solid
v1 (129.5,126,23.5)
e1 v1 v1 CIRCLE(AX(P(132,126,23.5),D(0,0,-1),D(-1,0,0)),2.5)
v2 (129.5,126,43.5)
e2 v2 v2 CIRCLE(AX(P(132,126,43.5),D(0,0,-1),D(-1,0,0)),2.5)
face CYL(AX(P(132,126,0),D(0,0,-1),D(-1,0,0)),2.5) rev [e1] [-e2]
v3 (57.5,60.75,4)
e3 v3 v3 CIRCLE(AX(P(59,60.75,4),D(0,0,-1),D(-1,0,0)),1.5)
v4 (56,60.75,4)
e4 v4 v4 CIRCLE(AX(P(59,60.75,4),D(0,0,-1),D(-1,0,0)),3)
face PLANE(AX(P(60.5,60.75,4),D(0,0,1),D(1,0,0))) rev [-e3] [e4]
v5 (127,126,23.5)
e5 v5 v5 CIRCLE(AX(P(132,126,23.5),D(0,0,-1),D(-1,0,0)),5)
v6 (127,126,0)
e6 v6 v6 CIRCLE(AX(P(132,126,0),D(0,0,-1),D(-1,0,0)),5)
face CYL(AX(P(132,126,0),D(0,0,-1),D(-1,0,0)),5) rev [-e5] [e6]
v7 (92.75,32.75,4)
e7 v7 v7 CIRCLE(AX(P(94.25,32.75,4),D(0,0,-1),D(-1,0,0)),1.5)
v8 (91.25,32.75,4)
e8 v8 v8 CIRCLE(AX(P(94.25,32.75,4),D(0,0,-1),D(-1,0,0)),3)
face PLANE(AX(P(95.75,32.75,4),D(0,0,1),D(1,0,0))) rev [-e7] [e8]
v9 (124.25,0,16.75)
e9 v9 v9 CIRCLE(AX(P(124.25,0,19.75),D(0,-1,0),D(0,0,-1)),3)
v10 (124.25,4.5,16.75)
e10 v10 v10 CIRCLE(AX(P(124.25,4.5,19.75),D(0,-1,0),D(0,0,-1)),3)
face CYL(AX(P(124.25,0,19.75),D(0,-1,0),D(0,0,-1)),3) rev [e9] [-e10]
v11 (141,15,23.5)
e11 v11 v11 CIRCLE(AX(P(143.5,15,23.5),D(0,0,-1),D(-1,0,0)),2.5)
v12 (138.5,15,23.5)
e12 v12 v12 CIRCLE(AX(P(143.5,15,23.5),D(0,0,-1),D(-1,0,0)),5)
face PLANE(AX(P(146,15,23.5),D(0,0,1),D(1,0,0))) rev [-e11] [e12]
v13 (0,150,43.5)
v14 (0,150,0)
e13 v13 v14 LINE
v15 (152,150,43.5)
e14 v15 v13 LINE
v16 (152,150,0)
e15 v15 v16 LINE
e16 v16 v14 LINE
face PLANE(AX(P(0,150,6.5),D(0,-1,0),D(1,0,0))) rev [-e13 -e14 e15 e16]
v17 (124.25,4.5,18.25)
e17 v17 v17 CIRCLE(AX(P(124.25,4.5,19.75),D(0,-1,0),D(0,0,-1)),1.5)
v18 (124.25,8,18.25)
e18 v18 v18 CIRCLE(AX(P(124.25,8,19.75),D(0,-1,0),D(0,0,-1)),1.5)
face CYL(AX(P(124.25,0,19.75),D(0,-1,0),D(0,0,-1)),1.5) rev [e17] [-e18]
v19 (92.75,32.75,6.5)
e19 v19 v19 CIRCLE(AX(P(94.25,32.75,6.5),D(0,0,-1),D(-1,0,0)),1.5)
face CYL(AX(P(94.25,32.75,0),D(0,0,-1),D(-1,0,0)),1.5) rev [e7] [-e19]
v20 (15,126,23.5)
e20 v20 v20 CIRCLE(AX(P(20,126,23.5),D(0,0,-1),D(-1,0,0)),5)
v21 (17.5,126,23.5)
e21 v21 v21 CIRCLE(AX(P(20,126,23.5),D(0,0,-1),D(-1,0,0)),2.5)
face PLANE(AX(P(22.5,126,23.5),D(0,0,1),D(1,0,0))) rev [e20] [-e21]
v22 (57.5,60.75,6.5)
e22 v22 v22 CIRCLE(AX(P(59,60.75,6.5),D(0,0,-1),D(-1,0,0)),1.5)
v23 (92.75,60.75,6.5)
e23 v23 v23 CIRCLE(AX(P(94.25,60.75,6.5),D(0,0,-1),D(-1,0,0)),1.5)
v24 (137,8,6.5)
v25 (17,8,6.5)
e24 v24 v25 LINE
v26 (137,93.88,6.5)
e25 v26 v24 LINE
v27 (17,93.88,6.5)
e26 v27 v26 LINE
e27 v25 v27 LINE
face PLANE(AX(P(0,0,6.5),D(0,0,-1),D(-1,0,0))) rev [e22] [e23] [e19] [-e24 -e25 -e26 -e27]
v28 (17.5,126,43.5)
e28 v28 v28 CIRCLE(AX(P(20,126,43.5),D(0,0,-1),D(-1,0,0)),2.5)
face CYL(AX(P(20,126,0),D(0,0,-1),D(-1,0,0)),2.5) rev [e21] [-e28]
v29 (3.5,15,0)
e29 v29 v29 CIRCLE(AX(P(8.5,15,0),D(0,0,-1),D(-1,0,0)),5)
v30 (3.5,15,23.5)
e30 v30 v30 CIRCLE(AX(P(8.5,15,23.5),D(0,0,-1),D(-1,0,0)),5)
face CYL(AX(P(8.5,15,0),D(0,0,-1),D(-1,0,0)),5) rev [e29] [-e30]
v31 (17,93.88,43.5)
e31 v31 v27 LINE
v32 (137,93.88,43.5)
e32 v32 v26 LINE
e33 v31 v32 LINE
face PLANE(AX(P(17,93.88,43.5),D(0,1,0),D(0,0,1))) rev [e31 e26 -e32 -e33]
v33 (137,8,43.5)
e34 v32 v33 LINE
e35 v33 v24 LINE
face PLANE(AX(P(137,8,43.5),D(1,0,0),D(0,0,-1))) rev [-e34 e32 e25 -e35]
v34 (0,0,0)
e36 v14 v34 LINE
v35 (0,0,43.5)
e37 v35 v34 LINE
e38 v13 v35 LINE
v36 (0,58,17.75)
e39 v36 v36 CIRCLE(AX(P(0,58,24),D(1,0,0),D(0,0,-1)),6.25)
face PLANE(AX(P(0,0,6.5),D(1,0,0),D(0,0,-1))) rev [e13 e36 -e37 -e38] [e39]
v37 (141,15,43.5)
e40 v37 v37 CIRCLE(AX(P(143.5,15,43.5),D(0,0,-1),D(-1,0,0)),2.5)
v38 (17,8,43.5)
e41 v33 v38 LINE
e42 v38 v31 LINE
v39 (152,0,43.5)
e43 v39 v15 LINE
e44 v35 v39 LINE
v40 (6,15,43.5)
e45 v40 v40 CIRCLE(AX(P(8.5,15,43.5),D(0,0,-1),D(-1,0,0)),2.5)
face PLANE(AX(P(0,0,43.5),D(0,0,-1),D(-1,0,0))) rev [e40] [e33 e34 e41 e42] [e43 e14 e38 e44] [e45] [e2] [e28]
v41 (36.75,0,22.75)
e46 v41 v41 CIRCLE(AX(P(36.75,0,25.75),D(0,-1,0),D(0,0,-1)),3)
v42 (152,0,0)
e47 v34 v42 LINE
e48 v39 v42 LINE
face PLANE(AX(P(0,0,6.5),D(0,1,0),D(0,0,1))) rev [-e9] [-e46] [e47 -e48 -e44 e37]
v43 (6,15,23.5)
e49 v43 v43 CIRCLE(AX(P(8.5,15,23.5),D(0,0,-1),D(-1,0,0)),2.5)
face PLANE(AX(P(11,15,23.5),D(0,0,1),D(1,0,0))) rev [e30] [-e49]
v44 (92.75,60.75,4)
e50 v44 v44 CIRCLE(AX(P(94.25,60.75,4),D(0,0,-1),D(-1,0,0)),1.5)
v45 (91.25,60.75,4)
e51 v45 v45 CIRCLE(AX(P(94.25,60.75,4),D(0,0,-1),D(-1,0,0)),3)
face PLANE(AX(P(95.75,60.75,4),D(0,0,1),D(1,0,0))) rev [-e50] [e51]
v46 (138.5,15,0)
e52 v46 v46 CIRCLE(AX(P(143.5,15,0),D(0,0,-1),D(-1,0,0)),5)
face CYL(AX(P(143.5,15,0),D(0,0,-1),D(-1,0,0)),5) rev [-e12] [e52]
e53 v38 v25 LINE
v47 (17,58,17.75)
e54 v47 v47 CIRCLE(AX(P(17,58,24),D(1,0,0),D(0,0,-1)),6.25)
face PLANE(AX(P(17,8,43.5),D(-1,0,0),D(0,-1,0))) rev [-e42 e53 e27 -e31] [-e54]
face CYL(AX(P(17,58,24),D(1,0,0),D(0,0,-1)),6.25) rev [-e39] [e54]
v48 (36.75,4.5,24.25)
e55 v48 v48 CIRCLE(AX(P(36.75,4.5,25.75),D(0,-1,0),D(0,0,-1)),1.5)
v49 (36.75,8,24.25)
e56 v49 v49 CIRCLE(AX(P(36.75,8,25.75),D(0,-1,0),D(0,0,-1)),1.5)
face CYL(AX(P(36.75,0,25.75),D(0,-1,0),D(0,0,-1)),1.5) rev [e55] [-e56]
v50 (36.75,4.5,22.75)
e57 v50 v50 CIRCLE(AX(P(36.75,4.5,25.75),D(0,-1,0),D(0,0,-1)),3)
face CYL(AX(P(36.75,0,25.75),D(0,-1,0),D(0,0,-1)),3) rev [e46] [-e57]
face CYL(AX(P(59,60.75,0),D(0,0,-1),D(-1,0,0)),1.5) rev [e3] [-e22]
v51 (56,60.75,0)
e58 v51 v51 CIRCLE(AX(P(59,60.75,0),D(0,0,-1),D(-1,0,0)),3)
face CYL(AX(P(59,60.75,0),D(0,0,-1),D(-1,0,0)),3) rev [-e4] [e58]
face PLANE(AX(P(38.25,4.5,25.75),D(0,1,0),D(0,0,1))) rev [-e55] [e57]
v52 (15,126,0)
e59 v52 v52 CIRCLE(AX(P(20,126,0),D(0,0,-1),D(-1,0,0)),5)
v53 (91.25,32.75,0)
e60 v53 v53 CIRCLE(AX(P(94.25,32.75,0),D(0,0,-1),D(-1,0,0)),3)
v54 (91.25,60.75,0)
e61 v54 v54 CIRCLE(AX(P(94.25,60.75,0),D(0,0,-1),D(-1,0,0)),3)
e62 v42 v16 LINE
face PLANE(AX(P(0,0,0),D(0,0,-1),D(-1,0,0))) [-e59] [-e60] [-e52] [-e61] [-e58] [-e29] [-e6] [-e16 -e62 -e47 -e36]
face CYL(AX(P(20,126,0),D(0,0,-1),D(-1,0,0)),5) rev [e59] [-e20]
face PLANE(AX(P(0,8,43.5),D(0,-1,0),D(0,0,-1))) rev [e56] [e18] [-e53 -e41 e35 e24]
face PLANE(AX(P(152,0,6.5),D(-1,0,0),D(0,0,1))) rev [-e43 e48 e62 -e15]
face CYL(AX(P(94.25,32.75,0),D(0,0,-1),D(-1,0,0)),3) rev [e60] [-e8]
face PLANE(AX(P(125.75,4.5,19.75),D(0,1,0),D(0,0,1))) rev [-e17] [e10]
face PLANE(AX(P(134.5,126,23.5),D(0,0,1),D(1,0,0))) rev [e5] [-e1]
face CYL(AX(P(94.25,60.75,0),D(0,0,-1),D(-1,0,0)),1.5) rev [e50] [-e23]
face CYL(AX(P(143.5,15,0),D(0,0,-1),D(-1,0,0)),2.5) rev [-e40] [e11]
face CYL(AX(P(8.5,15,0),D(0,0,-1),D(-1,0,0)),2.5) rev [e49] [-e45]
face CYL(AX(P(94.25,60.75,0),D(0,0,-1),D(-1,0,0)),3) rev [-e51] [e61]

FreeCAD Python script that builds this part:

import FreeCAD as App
import Part
import Sketcher
Q = App.Units.Quantity


def add_polygon(sketch, points):
    """Adds a closed chain of lines whose ends are joined by coincident constraints."""
    first, n = sketch.GeometryCount, len(points)
    for a, b in zip(points, points[1:] + points[:1]):
        sketch.addGeometry(Part.LineSegment(App.Vector(*a, 0), App.Vector(*b, 0)), False)
    for i in range(n):
        sketch.addConstraint(Sketcher.Constraint("Coincident", first + i, 2, first + (i + 1) % n, 1))

doc = App.newDocument("Part")
params = doc.addObject("Spreadsheet::Sheet", "Params")
for row, (alias, value) in enumerate([
    ("sketch1_width", "152 mm"),
    ("sketch1_height", "150 mm"),
    ("pad1_length", "6.5 mm"),
    ("sketch2_width", "152 mm"),
    ("sketch2_height", "8 mm"),
    ("pad2_length", "37 mm"),
    ("sketch3_width", "17 mm"),
    ("sketch3_height", "142 mm"),
    ("pad3_length", "37 mm"),
    ("sketch4_width", "15 mm"),
    ("sketch4_height", "142 mm"),
    ("pad4_length", "37 mm"),
    ("sketch5_width", "120 mm"),
    ("sketch5_height", "56.12 mm"),
    ("pad5_length", "37 mm"),
    ("sketch6_diameter", "3 mm"),
    ("hole_diameter", "3 mm"),
    ("hole_depth", "8 mm"),
    ("hole_cbore_diameter", "6 mm"),
    ("hole_cbore_depth", "4.5 mm"),
    ("sketch7_diameter", "3 mm"),
    ("hole2_diameter", "3 mm"),
    ("hole2_depth", "8 mm"),
    ("hole2_cbore_diameter", "6 mm"),
    ("hole2_cbore_depth", "4.5 mm"),
    ("sketch8_diameter", "12.5 mm"),
    ("hole3_diameter", "12.5 mm"),
    ("hole3_depth", "17 mm"),
    ("sketch9_diameter", "3 mm"),
    ("hole4_diameter", "3 mm"),
    ("hole4_cbore_diameter", "6 mm"),
    ("hole4_cbore_depth", "4 mm"),
    ("sketch10_diameter", "3 mm"),
    ("hole5_diameter", "3 mm"),
    ("hole5_cbore_diameter", "6 mm"),
    ("hole5_cbore_depth", "4 mm"),
    ("sketch11_diameter", "3 mm"),
    ("hole6_diameter", "3 mm"),
    ("hole6_cbore_diameter", "6 mm"),
    ("hole6_cbore_depth", "4 mm"),
    ("sketch12_diameter", "5 mm"),
    ("hole7_diameter", "5 mm"),
    ("hole7_cbore_diameter", "10 mm"),
    ("hole7_cbore_depth", "23.5 mm"),
    ("sketch13_diameter", "5 mm"),
    ("hole8_diameter", "5 mm"),
    ("hole8_cbore_diameter", "10 mm"),
    ("hole8_cbore_depth", "23.5 mm"),
], start=1):
    params.set(f"A{row}", alias)
    params.set(f"B{row}", "=" + value)
    params.setAlias(f"B{row}", alias)

body = doc.addObject("PartDesign::Body", "Body")

sketch1 = doc.addObject("Sketcher::SketchObject", "Sketch")
body.addObject(sketch1)
sketch1.AttachmentSupport = (doc.XY_Plane, [""])
sketch1.MapMode = "FlatFace"
add_polygon(sketch1, [(0, 150), (0, 0), (152, 0), (152, 150)])
sketch1.addConstraint(Sketcher.Constraint("Vertical", 0))
sketch1.addConstraint(Sketcher.Constraint("Horizontal", 1))
sketch1.addConstraint(Sketcher.Constraint("Vertical", 2))
sketch1.addConstraint(Sketcher.Constraint("Horizontal", 3))
sketch1.addConstraint(Sketcher.Constraint("Coincident", 0, 2, -1, 1))
sketch1.addConstraint(Sketcher.Constraint("DistanceX", 1, 1, 1, 2, Q("152 mm")))
sketch1.addConstraint(Sketcher.Constraint("DistanceY", 0, 2, 0, 1, Q("150 mm")))
sketch1.setExpression("Constraints[9]", "Params.sketch1_width")
sketch1.setExpression("Constraints[10]", "Params.sketch1_height")
pad1 = doc.addObject("PartDesign::Pad", "Pad")
body.addObject(pad1)
pad1.Profile = sketch1
pad1.setExpression("Length", "Params.pad1_length")

sketch2 = doc.addObject("Sketcher::SketchObject", "Sketch001")
body.addObject(sketch2)
sketch2.AttachmentSupport = (doc.XY_Plane, [""])
sketch2.MapMode = "FlatFace"
sketch2.AttachmentOffset = App.Placement(App.Vector(0, 0, 6.5), App.Rotation())
add_polygon(sketch2, [(0, 8), (0, 0), (152, 0), (152, 8)])
sketch2.addConstraint(Sketcher.Constraint("Vertical", 0))
sketch2.addConstraint(Sketcher.Constraint("Horizontal", 1))
sketch2.addConstraint(Sketcher.Constraint("Vertical", 2))
sketch2.addConstraint(Sketcher.Constraint("Horizontal", 3))
sketch2.addConstraint(Sketcher.Constraint("Coincident", 0, 2, -1, 1))
sketch2.addConstraint(Sketcher.Constraint("DistanceX", 1, 1, 1, 2, Q("152 mm")))
sketch2.addConstraint(Sketcher.Constraint("DistanceY", 0, 2, 0, 1, Q("8 mm")))
sketch2.setExpression("Constraints[9]", "Params.sketch2_width")
sketch2.setExpression("Constraints[10]", "Params.sketch2_height")
pad2 = doc.addObject("PartDesign::Pad", "Pad001")
body.addObject(pad2)
pad2.Profile = sketch2
pad2.setExpression("Length", "Params.pad2_length")

sketch3 = doc.addObject("Sketcher::SketchObject", "Sketch002")
body.addObject(sketch3)
sketch3.AttachmentSupport = (doc.XY_Plane, [""])
sketch3.MapMode = "FlatFace"
sketch3.AttachmentOffset = App.Placement(App.Vector(0, 0, 6.5), App.Rotation())
add_polygon(sketch3, [(0, 150), (0, 8), (17, 8), (17, 150)])
sketch3.addConstraint(Sketcher.Constraint("Vertical", 0))
sketch3.addConstraint(Sketcher.Constraint("Horizontal", 1))
sketch3.addConstraint(Sketcher.Constraint("Vertical", 2))
sketch3.addConstraint(Sketcher.Constraint("Horizontal", 3))
sketch3.addConstraint(Sketcher.Constraint("PointOnObject", 0, 2, -2))
sketch3.addConstraint(Sketcher.Constraint("DistanceX", 1, 1, 1, 2, Q("17 mm")))
sketch3.addConstraint(Sketcher.Constraint("DistanceY", 0, 2, 0, 1, Q("142 mm")))
sketch3.addConstraint(Sketcher.Constraint("DistanceY", -1, 1, 0, 2, Q("8 mm")))
sketch3.setExpression("Constraints[9]", "Params.sketch3_width")
sketch3.setExpression("Constraints[10]", "Params.sketch3_height")
pad3 = doc.addObject("PartDesign::Pad", "Pad002")
body.addObject(pad3)
pad3.Profile = sketch3
pad3.setExpression("Length", "Params.pad3_length")

sketch4 = doc.addObject("Sketcher::SketchObject", "Sketch003")
body.addObject(sketch4)
sketch4.AttachmentSupport = (doc.XY_Plane, [""])
sketch4.MapMode = "FlatFace"
sketch4.AttachmentOffset = App.Placement(App.Vector(0, 0, 6.5), App.Rotation())
add_polygon(sketch4, [(137, 150), (137, 8), (152, 8), (152, 150)])
sketch4.addConstraint(Sketcher.Constraint("Vertical", 0))
sketch4.addConstraint(Sketcher.Constraint("Horizontal", 1))
sketch4.addConstraint(Sketcher.Constraint("Vertical", 2))
sketch4.addConstraint(Sketcher.Constraint("Horizontal", 3))
sketch4.addConstraint(Sketcher.Constraint("DistanceX", 1, 1, 1, 2, Q("15 mm")))
sketch4.addConstraint(Sketcher.Constraint("DistanceY", 0, 2, 0, 1, Q("142 mm")))
sketch4.addConstraint(Sketcher.Constraint("DistanceX", -1, 1, 0, 2, Q("137 mm")))
sketch4.addConstraint(Sketcher.Constraint("DistanceY", -1, 1, 0, 2, Q("8 mm")))
sketch4.setExpression("Constraints[8]", "Params.sketch4_width")
sketch4.setExpression("Constraints[9]", "Params.sketch4_height")
pad4 = doc.addObject("PartDesign::Pad", "Pad003")
body.addObject(pad4)
pad4.Profile = sketch4
pad4.setExpression("Length", "Params.pad4_length")

sketch5 = doc.addObject("Sketcher::SketchObject", "Sketch004")
body.addObject(sketch5)
sketch5.AttachmentSupport = (doc.XY_Plane, [""])
sketch5.MapMode = "FlatFace"
sketch5.AttachmentOffset = App.Placement(App.Vector(0, 0, 6.5), App.Rotation())
add_polygon(sketch5, [(17, 150), (17, 94), (137, 94), (137, 150)])
sketch5.addConstraint(Sketcher.Constraint("Vertical", 0))
sketch5.addConstraint(Sketcher.Constraint("Horizontal", 1))
sketch5.addConstraint(Sketcher.Constraint("Vertical", 2))
sketch5.addConstraint(Sketcher.Constraint("Horizontal", 3))
sketch5.addConstraint(Sketcher.Constraint("DistanceX", 1, 1, 1, 2, Q("120 mm")))
sketch5.addConstraint(Sketcher.Constraint("DistanceX", -1, 1, 0, 2, Q("17 mm")))
sketch5.addConstraint(Sketcher.Constraint("DistanceY", -1, 1, 2, 2, Q("150 mm")))
sketch5.addConstraint(Sketcher.Constraint("DistanceY", 0, 2, 0, 1, Q("56.12 mm")))
sketch5.setExpression("Constraints[8]", "Params.sketch5_width")
sketch5.setExpression("Constraints[11]", "Params.sketch5_height")
pad5 = doc.addObject("PartDesign::Pad", "Pad004")
body.addObject(pad5)
pad5.Profile = sketch5
pad5.setExpression("Length", "Params.pad5_length")

sketch6 = doc.addObject("Sketcher::SketchObject", "Sketch005")
body.addObject(sketch6)
sketch6.AttachmentSupport = (doc.XZ_Plane, [""])
sketch6.MapMode = "FlatFace"
sketch6.addGeometry(Part.Circle(App.Vector(36.8, 25.8, 0), App.Vector(0, 0, 1), 1.5), False)
sketch6.addConstraint(Sketcher.Constraint("Diameter", 0, Q("3 mm")))
sketch6.addConstraint(Sketcher.Constraint("DistanceX", -1, 1, 0, 3, Q("36.75 mm")))
sketch6.addConstraint(Sketcher.Constraint("DistanceY", -1, 1, 0, 3, Q("25.75 mm")))
sketch6.setExpression("Constraints[0]", "Params.sketch6_diameter")
doc.recompute()
hole = doc.addObject("PartDesign::Hole", "Hole")
body.addObject(hole)
hole.Profile = sketch6
hole.ThreadType = "None"
hole.setExpression("Diameter", "Params.hole_diameter")
hole.DepthType = "Dimension"
hole.setExpression("Depth", "Params.hole_depth")
hole.DrillPoint = "Flat"
hole.HoleCutType = "Counterbore"
hole.setExpression("HoleCutDiameter", "Params.hole_cbore_diameter")
hole.setExpression("HoleCutDepth", "Params.hole_cbore_depth")

sketch7 = doc.addObject("Sketcher::SketchObject", "Sketch006")
body.addObject(sketch7)
sketch7.AttachmentSupport = (doc.XZ_Plane, [""])
sketch7.MapMode = "FlatFace"
sketch7.addGeometry(Part.Circle(App.Vector(124.2, 19.8, 0), App.Vector(0, 0, 1), 1.5), False)
sketch7.addConstraint(Sketcher.Constraint("Diameter", 0, Q("3 mm")))
sketch7.addConstraint(Sketcher.Constraint("DistanceX", -1, 1, 0, 3, Q("124.25 mm")))
sketch7.addConstraint(Sketcher.Constraint("DistanceY", -1, 1, 0, 3, Q("19.75 mm")))
sketch7.setExpression("Constraints[0]", "Params.sketch7_diameter")
doc.recompute()
hole2 = doc.addObject("PartDesign::Hole", "Hole001")
body.addObject(hole2)
hole2.Profile = sketch7
hole2.ThreadType = "None"
hole2.setExpression("Diameter", "Params.hole2_diameter")
hole2.DepthType = "Dimension"
hole2.setExpression("Depth", "Params.hole2_depth")
hole2.DrillPoint = "Flat"
hole2.HoleCutType = "Counterbore"
hole2.setExpression("HoleCutDiameter", "Params.hole2_cbore_diameter")
hole2.setExpression("HoleCutDepth", "Params.hole2_cbore_depth")

sketch8 = doc.addObject("Sketcher::SketchObject", "Sketch007")
body.addObject(sketch8)
sketch8.AttachmentSupport = (doc.YZ_Plane, [""])
sketch8.MapMode = "FlatFace"
sketch8.AttachmentOffset = App.Placement(App.Vector(0, 0, 17), App.Rotation())
sketch8.addGeometry(Part.Circle(App.Vector(58, 24, 0), App.Vector(0, 0, 1), 6), False)
sketch8.addConstraint(Sketcher.Constraint("Diameter", 0, Q("12.5 mm")))
sketch8.addConstraint(Sketcher.Constraint("DistanceX", -1, 1, 0, 3, Q("58 mm")))
sketch8.addConstraint(Sketcher.Constraint("DistanceY", -1, 1, 0, 3, Q("24 mm")))
sketch8.setExpression("Constraints[0]", "Params.sketch8_diameter")
doc.recompute()
hole3 = doc.addObject("PartDesign::Hole", "Hole002")
body.addObject(hole3)
hole3.Profile = sketch8
hole3.ThreadType = "None"
hole3.setExpression("Diameter", "Params.hole3_diameter")
hole3.DepthType = "Dimension"
hole3.setExpression("Depth", "Params.hole3_depth")
hole3.DrillPoint = "Flat"

sketch9 = doc.addObject("Sketcher::SketchObject", "Sketch008")
body.addObject(sketch9)
sketch9.AttachmentSupport = (doc.XY_Plane, [""])
sketch9.MapMode = "FlatFace"
sketch9.addGeometry(Part.Circle(App.Vector(94.2, 32.8, 0), App.Vector(0, 0, 1), 1.5), False)
sketch9.addConstraint(Sketcher.Constraint("Diameter", 0, Q("3 mm")))
sketch9.addConstraint(Sketcher.Constraint("DistanceX", -1, 1, 0, 3, Q("94.25 mm")))
sketch9.addConstraint(Sketcher.Constraint("DistanceY", -1, 1, 0, 3, Q("32.75 mm")))
sketch9.setExpression("Constraints[0]", "Params.sketch9_diameter")
doc.recompute()
hole4 = doc.addObject("PartDesign::Hole", "Hole003")
body.addObject(hole4)
hole4.Profile = sketch9
hole4.ThreadType = "None"
hole4.setExpression("Diameter", "Params.hole4_diameter")
hole4.DepthType = "ThroughAll"
hole4.HoleCutType = "Counterbore"
hole4.setExpression("HoleCutDiameter", "Params.hole4_cbore_diameter")
hole4.setExpression("HoleCutDepth", "Params.hole4_cbore_depth")
hole4.Reversed = True

sketch10 = doc.addObject("Sketcher::SketchObject", "Sketch009")
body.addObject(sketch10)
sketch10.AttachmentSupport = (doc.XY_Plane, [""])
sketch10.MapMode = "FlatFace"
sketch10.addGeometry(Part.Circle(App.Vector(94.2, 60.8, 0), App.Vector(0, 0, 1), 1.5), False)
sketch10.addConstraint(Sketcher.Constraint("Diameter", 0, Q("3 mm")))
sketch10.addConstraint(Sketcher.Constraint("DistanceX", -1, 1, 0, 3, Q("94.25 mm")))
sketch10.addConstraint(Sketcher.Constraint("DistanceY", -1, 1, 0, 3, Q("60.75 mm")))
sketch10.setExpression("Constraints[0]", "Params.sketch10_diameter")
doc.recompute()
hole5 = doc.addObject("PartDesign::Hole", "Hole004")
body.addObject(hole5)
hole5.Profile = sketch10
hole5.ThreadType = "None"
hole5.setExpression("Diameter", "Params.hole5_diameter")
hole5.DepthType = "ThroughAll"
hole5.HoleCutType = "Counterbore"
hole5.setExpression("HoleCutDiameter", "Params.hole5_cbore_diameter")
hole5.setExpression("HoleCutDepth", "Params.hole5_cbore_depth")
hole5.Reversed = True

sketch11 = doc.addObject("Sketcher::SketchObject", "Sketch010")
body.addObject(sketch11)
sketch11.AttachmentSupport = (doc.XY_Plane, [""])
sketch11.MapMode = "FlatFace"
sketch11.addGeometry(Part.Circle(App.Vector(59, 60.8, 0), App.Vector(0, 0, 1), 1.5), False)
sketch11.addConstraint(Sketcher.Constraint("Diameter", 0, Q("3 mm")))
sketch11.addConstraint(Sketcher.Constraint("DistanceX", -1, 1, 0, 3, Q("59 mm")))
sketch11.addConstraint(Sketcher.Constraint("DistanceY", -1, 1, 0, 3, Q("60.75 mm")))
sketch11.setExpression("Constraints[0]", "Params.sketch11_diameter")
doc.recompute()
hole6 = doc.addObject("PartDesign::Hole", "Hole005")
body.addObject(hole6)
hole6.Profile = sketch11
hole6.ThreadType = "None"
hole6.setExpression("Diameter", "Params.hole6_diameter")
hole6.DepthType = "ThroughAll"
hole6.HoleCutType = "Counterbore"
hole6.setExpression("HoleCutDiameter", "Params.hole6_cbore_diameter")
hole6.setExpression("HoleCutDepth", "Params.hole6_cbore_depth")
hole6.Reversed = True

sketch12 = doc.addObject("Sketcher::SketchObject", "Sketch011")
body.addObject(sketch12)
sketch12.AttachmentSupport = (doc.XY_Plane, [""])
sketch12.MapMode = "FlatFace"
sketch12.addGeometry(Part.Circle(App.Vector(132, 126, 0), App.Vector(0, 0, 1), 2.5), False)
sketch12.addGeometry(Part.Circle(App.Vector(20, 126, 0), App.Vector(0, 0, 1), 2.5), False)
sketch12.addConstraint(Sketcher.Constraint("Equal", 0, 1))
sketch12.addConstraint(Sketcher.Constraint("Horizontal", 0, 3, 1, 3))
sketch12.addConstraint(Sketcher.Constraint("Diameter", 0, Q("5 mm")))
sketch12.addConstraint(Sketcher.Constraint("DistanceX", -1, 1, 0, 3, Q("132 mm")))
sketch12.addConstraint(Sketcher.Constraint("DistanceY", -1, 1, 0, 3, Q("126 mm")))
sketch12.addConstraint(Sketcher.Constraint("DistanceX", -1, 1, 1, 3, Q("20 mm")))
sketch12.setExpression("Constraints[2]", "Params.sketch12_diameter")
doc.recompute()
hole7 = doc.addObject("PartDesign::Hole", "Hole006")
body.addObject(hole7)
hole7.Profile = sketch12
hole7.ThreadType = "None"
hole7.setExpression("Diameter", "Params.hole7_diameter")
hole7.DepthType = "ThroughAll"
hole7.HoleCutType = "Counterbore"
hole7.setExpression("HoleCutDiameter", "Params.hole7_cbore_diameter")
hole7.setExpression("HoleCutDepth", "Params.hole7_cbore_depth")
hole7.Reversed = True

sketch13 = doc.addObject("Sketcher::SketchObject", "Sketch012")
body.addObject(sketch13)
sketch13.AttachmentSupport = (doc.XY_Plane, [""])
sketch13.MapMode = "FlatFace"
sketch13.addGeometry(Part.Circle(App.Vector(143.5, 15, 0), App.Vector(0, 0, 1), 2.5), False)
sketch13.addGeometry(Part.Circle(App.Vector(8.5, 15, 0), App.Vector(0, 0, 1), 2.5), False)
sketch13.addConstraint(Sketcher.Constraint("Equal", 0, 1))
sketch13.addConstraint(Sketcher.Constraint("Horizontal", 0, 3, 1, 3))
sketch13.addConstraint(Sketcher.Constraint("Diameter", 0, Q("5 mm")))
sketch13.addConstraint(Sketcher.Constraint("DistanceY", -1, 1, 0, 3, Q("15 mm")))
sketch13.addConstraint(Sketcher.Constraint("DistanceX", 1, 3, 0, 3, Q("135 mm")))
sketch13.addConstraint(Sketcher.Constraint("DistanceX", -1, 1, 0, 3, Q("143.5 mm")))
sketch13.setExpression("Constraints[2]", "Params.sketch13_diameter")
doc.recompute()
hole8 = doc.addObject("PartDesign::Hole", "Hole007")
body.addObject(hole8)
hole8.Profile = sketch13
hole8.ThreadType = "None"
hole8.setExpression("Diameter", "Params.hole8_diameter")
hole8.DepthType = "ThroughAll"
hole8.HoleCutType = "Counterbore"
hole8.setExpression("HoleCutDiameter", "Params.hole8_cbore_diameter")
hole8.setExpression("HoleCutDepth", "Params.hole8_cbore_depth")
hole8.Reversed = True

doc.recompute()
